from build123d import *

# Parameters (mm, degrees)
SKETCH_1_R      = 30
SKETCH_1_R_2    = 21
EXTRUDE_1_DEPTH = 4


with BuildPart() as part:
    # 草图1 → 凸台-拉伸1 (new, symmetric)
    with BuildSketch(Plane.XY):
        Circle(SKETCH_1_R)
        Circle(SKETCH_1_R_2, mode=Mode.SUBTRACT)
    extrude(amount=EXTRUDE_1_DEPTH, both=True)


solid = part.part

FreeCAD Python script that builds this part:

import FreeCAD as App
import Part
import Sketcher
from FreeCAD import Vector
Q = App.Units.Quantity

doc = App.newDocument("Part")
body = doc.addObject("PartDesign::Body", "Body")

sketch1 = doc.addObject("Sketcher::SketchObject", "Sketch")
body.addObject(sketch1)
sketch1.AttachmentSupport = (doc.XY_Plane, [""])
sketch1.MapMode = "FlatFace"
sketch1.addGeometry(Part.Circle(Vector(0, 0, 0), Vector(0, 0, 1), 30), False)
sketch1.addGeometry(Part.Circle(Vector(0, 0, 0), Vector(0, 0, 1), 21), False)
sketch1.addConstraint(Sketcher.Constraint("Coincident", 0, 3, -1, 1))
sketch1.addConstraint(Sketcher.Constraint("Coincident", 1, 3, -1, 1))
sketch1.addConstraint(Sketcher.Constraint("Diameter", 0, Q("60 mm")))
sketch1.addConstraint(Sketcher.Constraint("Diameter", 1, Q("42 mm")))
pad1 = doc.addObject("PartDesign::Pad", "Pad")
body.addObject(pad1)
pad1.Profile = sketch1
pad1.Length = 8
pad1.Midplane = True

doc.recompute()
